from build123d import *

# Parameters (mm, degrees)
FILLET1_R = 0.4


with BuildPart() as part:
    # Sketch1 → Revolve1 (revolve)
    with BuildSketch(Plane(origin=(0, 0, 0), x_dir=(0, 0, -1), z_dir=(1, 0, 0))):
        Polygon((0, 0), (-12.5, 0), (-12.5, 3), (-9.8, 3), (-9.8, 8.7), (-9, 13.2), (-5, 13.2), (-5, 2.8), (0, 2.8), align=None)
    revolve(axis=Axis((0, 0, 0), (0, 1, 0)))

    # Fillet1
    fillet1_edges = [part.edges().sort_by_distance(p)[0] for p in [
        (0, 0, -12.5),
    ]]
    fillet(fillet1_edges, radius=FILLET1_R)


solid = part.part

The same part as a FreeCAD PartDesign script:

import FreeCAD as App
import Part
import Sketcher
Q = App.Units.Quantity


def edges_at(feature, points):
    """Names of the edges that pass closest to the given points."""
    edges = feature.Shape.Edges
    near = lambda p: min(range(len(edges)), key=lambda i: edges[i].distToShape(Part.Vertex(*p))[0])
    return sorted({f"Edge{near(p) + 1}" for p in points})

doc = App.newDocument("Part")
body = doc.addObject("PartDesign::Body", "Body")

# Sketch on YZ plane
sketch1 = body.newObject("Sketcher::SketchObject", "Sketch")
sketch1.AttachmentSupport = (doc.getObject("YZ_Plane"), [""])
sketch1.MapMode = "FlatFace"
sketch1.addGeometry([
    Part.LineSegment(App.Vector(0, 12.5, 0), App.Vector(0, 0, 0)),  # 0
    Part.LineSegment(App.Vector(0, 0, 0), App.Vector(2.8, 0, 0)),  # 1
    Part.LineSegment(App.Vector(2.8, 0, 0), App.Vector(2.8, 5, 0)),  # 2
    Part.LineSegment(App.Vector(2.8, 5, 0), App.Vector(13.2, 5, 0)),  # 3
    Part.LineSegment(App.Vector(13.2, 5, 0), App.Vector(13.2, 9, 0)),  # 4
    Part.LineSegment(App.Vector(13.2, 9, 0), App.Vector(8.7, 9.8, 0)),  # 5
    Part.LineSegment(App.Vector(8.7, 9.8, 0), App.Vector(3, 9.8, 0)),  # 6
    Part.LineSegment(App.Vector(3, 9.8, 0), App.Vector(3, 12.5, 0)),  # 7
    Part.LineSegment(App.Vector(3, 12.5, 0), App.Vector(0, 12.5, 0)),  # 8
], False)
sketch1.addConstraint([
    Sketcher.Constraint("Coincident", 0, 2, 1, 1),
    Sketcher.Constraint("Coincident", 1, 2, 2, 1),
    Sketcher.Constraint("Coincident", 2, 2, 3, 1),
    Sketcher.Constraint("Coincident", 3, 2, 4, 1),
    Sketcher.Constraint("Coincident", 4, 2, 5, 1),
    Sketcher.Constraint("Coincident", 5, 2, 6, 1),
    Sketcher.Constraint("Coincident", 6, 2, 7, 1),
    Sketcher.Constraint("Coincident", 7, 2, 8, 1),
    Sketcher.Constraint("Coincident", 8, 2, 0, 1),
    Sketcher.Constraint("Vertical", 0),
    Sketcher.Constraint("Horizontal", 1),
    Sketcher.Constraint("Vertical", 2),
    Sketcher.Constraint("Horizontal", 3),
    Sketcher.Constraint("Vertical", 4),
    Sketcher.Constraint("Horizontal", 6),
    Sketcher.Constraint("Vertical", 7),
    Sketcher.Constraint("Horizontal", 8),
    Sketcher.Constraint("Coincident", 0, 2, -1, 1),
    Sketcher.Constraint("DistanceX", 8, 2, 8, 1, Q("3 mm")),
    Sketcher.Constraint("DistanceY", 2, 1, 2, 2, Q("5 mm")),
    Sketcher.Constraint("DistanceY", 4, 1, 4, 2, Q("4 mm")),
    Sketcher.Constraint("DistanceX", 1, 1, 1, 2, Q("2.8 mm")),
    Sketcher.Constraint("DistanceX", 3, 1, 3, 2, Q("10.4 mm")),
    Sketcher.Constraint("DistanceX", 6, 2, 6, 1, Q("5.7 mm")),
    Sketcher.Constraint("DistanceY", 0, 2, 0, 1, Q("12.5 mm")),
    Sketcher.Constraint("DistanceY", 7, 1, 7, 2, Q("2.7 mm")),
])
revolution = body.newObject("PartDesign::Revolution", "Revolution")
revolution.Profile = sketch1
revolution.ReferenceAxis = (sketch1, ["H_Axis"])
revolution.Angle = 360
doc.recompute()

fillet = body.newObject("PartDesign::Fillet", "Fillet")
fillet.Base = (revolution, edges_at(revolution, [(0, 0, -12.5)]))
fillet.Radius = 0.4

doc.recompute()
